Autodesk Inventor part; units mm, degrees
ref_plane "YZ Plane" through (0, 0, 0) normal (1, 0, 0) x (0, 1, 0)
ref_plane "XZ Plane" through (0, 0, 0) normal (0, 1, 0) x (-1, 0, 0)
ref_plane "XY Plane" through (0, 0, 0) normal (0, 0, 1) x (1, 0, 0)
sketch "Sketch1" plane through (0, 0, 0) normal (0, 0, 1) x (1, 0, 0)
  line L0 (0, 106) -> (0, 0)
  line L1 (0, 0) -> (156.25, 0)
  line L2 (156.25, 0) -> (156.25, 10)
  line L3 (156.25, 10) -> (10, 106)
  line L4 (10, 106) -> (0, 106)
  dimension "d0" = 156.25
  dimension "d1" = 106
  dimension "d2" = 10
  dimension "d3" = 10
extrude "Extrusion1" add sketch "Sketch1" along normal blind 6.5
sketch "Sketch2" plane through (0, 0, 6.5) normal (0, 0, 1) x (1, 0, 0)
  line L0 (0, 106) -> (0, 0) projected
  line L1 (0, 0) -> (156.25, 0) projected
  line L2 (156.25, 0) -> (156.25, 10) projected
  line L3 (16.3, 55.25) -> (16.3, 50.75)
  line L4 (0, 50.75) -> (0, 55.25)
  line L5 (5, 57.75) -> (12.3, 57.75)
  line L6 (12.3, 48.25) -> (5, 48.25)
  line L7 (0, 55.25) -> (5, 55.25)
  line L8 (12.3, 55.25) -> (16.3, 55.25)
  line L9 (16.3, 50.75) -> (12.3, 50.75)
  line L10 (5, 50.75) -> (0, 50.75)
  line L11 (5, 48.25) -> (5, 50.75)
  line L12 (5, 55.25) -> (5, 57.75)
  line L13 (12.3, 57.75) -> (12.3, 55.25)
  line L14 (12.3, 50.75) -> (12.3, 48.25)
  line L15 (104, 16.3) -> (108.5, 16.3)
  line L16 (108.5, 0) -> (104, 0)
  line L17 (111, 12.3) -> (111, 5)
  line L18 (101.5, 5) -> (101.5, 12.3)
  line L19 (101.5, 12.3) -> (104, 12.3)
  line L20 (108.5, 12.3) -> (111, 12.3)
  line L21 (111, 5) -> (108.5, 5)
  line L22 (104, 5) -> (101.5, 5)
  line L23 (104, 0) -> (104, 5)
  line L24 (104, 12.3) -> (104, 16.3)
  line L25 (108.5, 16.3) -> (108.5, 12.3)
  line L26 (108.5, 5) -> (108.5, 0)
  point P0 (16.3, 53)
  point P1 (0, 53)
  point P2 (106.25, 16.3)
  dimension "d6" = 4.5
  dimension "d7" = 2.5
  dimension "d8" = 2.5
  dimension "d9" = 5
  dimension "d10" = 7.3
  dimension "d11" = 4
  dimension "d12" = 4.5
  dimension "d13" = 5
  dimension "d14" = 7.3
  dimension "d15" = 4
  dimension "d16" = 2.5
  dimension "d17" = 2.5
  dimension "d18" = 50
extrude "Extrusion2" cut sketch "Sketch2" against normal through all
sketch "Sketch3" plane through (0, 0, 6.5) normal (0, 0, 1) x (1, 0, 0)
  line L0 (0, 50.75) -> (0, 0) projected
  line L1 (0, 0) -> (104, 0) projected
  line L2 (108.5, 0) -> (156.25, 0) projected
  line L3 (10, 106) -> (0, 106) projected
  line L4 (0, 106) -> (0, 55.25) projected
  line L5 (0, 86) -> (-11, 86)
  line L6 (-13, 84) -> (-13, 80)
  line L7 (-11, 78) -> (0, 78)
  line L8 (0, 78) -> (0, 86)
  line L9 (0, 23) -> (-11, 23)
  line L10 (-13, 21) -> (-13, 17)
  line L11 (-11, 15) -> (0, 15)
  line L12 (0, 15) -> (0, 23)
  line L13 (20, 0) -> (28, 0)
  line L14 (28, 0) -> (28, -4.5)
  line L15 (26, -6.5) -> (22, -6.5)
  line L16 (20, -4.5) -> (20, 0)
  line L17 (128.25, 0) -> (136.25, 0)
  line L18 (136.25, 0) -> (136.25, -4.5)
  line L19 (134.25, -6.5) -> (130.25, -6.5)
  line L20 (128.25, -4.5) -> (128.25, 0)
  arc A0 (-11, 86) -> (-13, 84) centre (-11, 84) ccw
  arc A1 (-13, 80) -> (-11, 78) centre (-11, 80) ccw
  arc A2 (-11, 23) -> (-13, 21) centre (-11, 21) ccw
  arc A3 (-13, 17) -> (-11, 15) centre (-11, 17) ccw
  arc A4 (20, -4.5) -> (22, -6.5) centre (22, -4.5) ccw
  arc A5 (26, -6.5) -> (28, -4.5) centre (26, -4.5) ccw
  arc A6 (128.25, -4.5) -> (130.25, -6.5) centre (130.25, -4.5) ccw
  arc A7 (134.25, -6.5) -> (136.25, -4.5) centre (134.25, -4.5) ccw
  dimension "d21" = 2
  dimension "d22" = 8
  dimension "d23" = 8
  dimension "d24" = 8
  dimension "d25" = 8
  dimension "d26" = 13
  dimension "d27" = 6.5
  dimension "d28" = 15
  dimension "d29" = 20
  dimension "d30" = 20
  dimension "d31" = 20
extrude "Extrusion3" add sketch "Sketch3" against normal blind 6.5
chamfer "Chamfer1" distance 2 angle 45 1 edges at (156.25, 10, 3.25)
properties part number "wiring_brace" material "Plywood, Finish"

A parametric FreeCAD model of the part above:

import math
import FreeCAD as App
import Part
import Sketcher
from FreeCAD import Vector


def edges_at(feature, points):
    """Names of the edges that pass closest to the given points."""
    edges = feature.Shape.Edges
    near = lambda p: min(range(len(edges)), key=lambda i: edges[i].distToShape(Part.Vertex(*p))[0])
    return sorted({f"Edge{near(p) + 1}" for p in points})

doc = App.newDocument("Part")
body = doc.addObject("PartDesign::Body", "Body")

# Sketch on XY plane
sketch1 = doc.addObject("Sketcher::SketchObject", "Sketch")
body.addObject(sketch1)
sketch1.AttachmentSupport = (doc.XY_Plane, [""])
sketch1.MapMode = "FlatFace"
sketch1.addGeometry(Part.LineSegment(Vector(10, 106, 0), Vector(0, 106, 0)), False)
sketch1.addGeometry(Part.LineSegment(Vector(0, 106, 0), Vector(0, 0, 0)), False)
sketch1.addGeometry(Part.LineSegment(Vector(0, 0, 0), Vector(156, 0, 0)), False)
sketch1.addGeometry(Part.LineSegment(Vector(156, 0, 0), Vector(156, 10, 0)), False)
sketch1.addGeometry(Part.LineSegment(Vector(156, 10, 0), Vector(10, 106, 0)), False)
sketch1.addConstraint(Sketcher.Constraint("Coincident", 0, 2, 1, 1))
sketch1.addConstraint(Sketcher.Constraint("Coincident", 1, 2, 2, 1))
sketch1.addConstraint(Sketcher.Constraint("Coincident", 2, 2, 3, 1))
sketch1.addConstraint(Sketcher.Constraint("Coincident", 3, 2, 4, 1))
sketch1.addConstraint(Sketcher.Constraint("Coincident", 4, 2, 0, 1))
sketch1.addConstraint(Sketcher.Constraint("Horizontal", 0))
sketch1.addConstraint(Sketcher.Constraint("Vertical", 1))
sketch1.addConstraint(Sketcher.Constraint("Horizontal", 2))
sketch1.addConstraint(Sketcher.Constraint("Vertical", 3))
sketch1.addConstraint(Sketcher.Constraint("Coincident", 1, 2, -1, 1))
sketch1.addConstraint(Sketcher.Constraint("Equal", 0, 3))
sketch1.addConstraint(Sketcher.Constraint("DistanceX", 0, 2, 0, 1, 10.0))
sketch1.addConstraint(Sketcher.Constraint("DistanceY", 1, 2, 1, 1, 106.0))
sketch1.addConstraint(Sketcher.Constraint("DistanceX", 2, 1, 2, 2, 156.25))
pad1 = doc.addObject("PartDesign::Pad", "Pad")
body.addObject(pad1)
pad1.Profile = sketch1
pad1.Length = 6.5

# Sketch on XY plane
sketch2 = doc.addObject("Sketcher::SketchObject", "Sketch001")
body.addObject(sketch2)
sketch2.AttachmentSupport = (doc.XY_Plane, [""])
sketch2.MapMode = "FlatFace"
sketch2.AttachmentOffset = App.Placement(Vector(0, 0, 6.5), App.Rotation())
sketch2.addGeometry(Part.LineSegment(Vector(5, 55.2, 0), Vector(0, 55.2, 0)), False)
sketch2.addGeometry(Part.LineSegment(Vector(0, 55.2, 0), Vector(0, 50.8, 0)), False)
sketch2.addGeometry(Part.LineSegment(Vector(0, 50.8, 0), Vector(5, 50.8, 0)), False)
sketch2.addGeometry(Part.LineSegment(Vector(5, 50.8, 0), Vector(5, 48.2, 0)), False)
sketch2.addGeometry(Part.LineSegment(Vector(5, 48.2, 0), Vector(12.3, 48.2, 0)), False)
sketch2.addGeometry(Part.LineSegment(Vector(12.3, 48.2, 0), Vector(12.3, 50.8, 0)), False)
sketch2.addGeometry(Part.LineSegment(Vector(12.3, 50.8, 0), Vector(16.3, 50.8, 0)), False)
sketch2.addGeometry(Part.LineSegment(Vector(16.3, 50.8, 0), Vector(16.3, 55.2, 0)), False)
sketch2.addGeometry(Part.LineSegment(Vector(16.3, 55.2, 0), Vector(12.3, 55.2, 0)), False)
sketch2.addGeometry(Part.LineSegment(Vector(12.3, 55.2, 0), Vector(12.3, 57.8, 0)), False)
sketch2.addGeometry(Part.LineSegment(Vector(12.3, 57.8, 0), Vector(5, 57.8, 0)), False)
sketch2.addGeometry(Part.LineSegment(Vector(5, 57.8, 0), Vector(5, 55.2, 0)), False)
sketch2.addGeometry(Part.LineSegment(Vector(104, 5, 0), Vector(104, 0, 0)), False)
sketch2.addGeometry(Part.LineSegment(Vector(104, 0, 0), Vector(108.5, 0, 0)), False)
sketch2.addGeometry(Part.LineSegment(Vector(108.5, 0, 0), Vector(108.5, 5, 0)), False)
sketch2.addGeometry(Part.LineSegment(Vector(108.5, 5, 0), Vector(111, 5, 0)), False)
sketch2.addGeometry(Part.LineSegment(Vector(111, 5, 0), Vector(111, 12.3, 0)), False)
sketch2.addGeometry(Part.LineSegment(Vector(111, 12.3, 0), Vector(108.5, 12.3, 0)), False)
sketch2.addGeometry(Part.LineSegment(Vector(108.5, 12.3, 0), Vector(108.5, 16.3, 0)), False)
sketch2.addGeometry(Part.LineSegment(Vector(108.5, 16.3, 0), Vector(104, 16.3, 0)), False)
sketch2.addGeometry(Part.LineSegment(Vector(104, 16.3, 0), Vector(104, 12.3, 0)), False)
sketch2.addGeometry(Part.LineSegment(Vector(104, 12.3, 0), Vector(101.5, 12.3, 0)), False)
sketch2.addGeometry(Part.LineSegment(Vector(101.5, 12.3, 0), Vector(101.5, 5, 0)), False)
sketch2.addGeometry(Part.LineSegment(Vector(101.5, 5, 0), Vector(104, 5, 0)), False)
sketch2.addConstraint(Sketcher.Constraint("Coincident", 0, 2, 1, 1))
sketch2.addConstraint(Sketcher.Constraint("Coincident", 1, 2, 2, 1))
sketch2.addConstraint(Sketcher.Constraint("Coincident", 2, 2, 3, 1))
sketch2.addConstraint(Sketcher.Constraint("Coincident", 3, 2, 4, 1))
sketch2.addConstraint(Sketcher.Constraint("Coincident", 4, 2, 5, 1))
sketch2.addConstraint(Sketcher.Constraint("Coincident", 5, 2, 6, 1))
sketch2.addConstraint(Sketcher.Constraint("Coincident", 6, 2, 7, 1))
sketch2.addConstraint(Sketcher.Constraint("Coincident", 7, 2, 8, 1))
sketch2.addConstraint(Sketcher.Constraint("Coincident", 8, 2, 9, 1))
sketch2.addConstraint(Sketcher.Constraint("Coincident", 9, 2, 10, 1))
sketch2.addConstraint(Sketcher.Constraint("Coincident", 10, 2, 11, 1))
sketch2.addConstraint(Sketcher.Constraint("Coincident", 11, 2, 0, 1))
sketch2.addConstraint(Sketcher.Constraint("Coincident", 12, 2, 13, 1))
sketch2.addConstraint(Sketcher.Constraint("Coincident", 13, 2, 14, 1))
sketch2.addConstraint(Sketcher.Constraint("Coincident", 14, 2, 15, 1))
sketch2.addConstraint(Sketcher.Constraint("Coincident", 15, 2, 16, 1))
sketch2.addConstraint(Sketcher.Constraint("Coincident", 16, 2, 17, 1))
sketch2.addConstraint(Sketcher.Constraint("Coincident", 17, 2, 18, 1))
sketch2.addConstraint(Sketcher.Constraint("Coincident", 18, 2, 19, 1))
sketch2.addConstraint(Sketcher.Constraint("Coincident", 19, 2, 20, 1))
sketch2.addConstraint(Sketcher.Constraint("Coincident", 20, 2, 21, 1))
sketch2.addConstraint(Sketcher.Constraint("Coincident", 21, 2, 22, 1))
sketch2.addConstraint(Sketcher.Constraint("Coincident", 22, 2, 23, 1))
sketch2.addConstraint(Sketcher.Constraint("Coincident", 23, 2, 12, 1))
sketch2.addConstraint(Sketcher.Constraint("Horizontal", 0))
sketch2.addConstraint(Sketcher.Constraint("Vertical", 1))
sketch2.addConstraint(Sketcher.Constraint("Horizontal", 2))
sketch2.addConstraint(Sketcher.Constraint("Vertical", 3))
sketch2.addConstraint(Sketcher.Constraint("Horizontal", 4))
sketch2.addConstraint(Sketcher.Constraint("Vertical", 5))
sketch2.addConstraint(Sketcher.Constraint("Horizontal", 6))
sketch2.addConstraint(Sketcher.Constraint("Vertical", 7))
sketch2.addConstraint(Sketcher.Constraint("Horizontal", 8))
sketch2.addConstraint(Sketcher.Constraint("Vertical", 9))
sketch2.addConstraint(Sketcher.Constraint("Horizontal", 10))
sketch2.addConstraint(Sketcher.Constraint("Vertical", 11))
sketch2.addConstraint(Sketcher.Constraint("Vertical", 12))
sketch2.addConstraint(Sketcher.Constraint("Horizontal", 13))
sketch2.addConstraint(Sketcher.Constraint("Vertical", 14))
sketch2.addConstraint(Sketcher.Constraint("Horizontal", 15))
sketch2.addConstraint(Sketcher.Constraint("Vertical", 16))
sketch2.addConstraint(Sketcher.Constraint("Horizontal", 17))
sketch2.addConstraint(Sketcher.Constraint("Vertical", 18))
sketch2.addConstraint(Sketcher.Constraint("Horizontal", 19))
sketch2.addConstraint(Sketcher.Constraint("Vertical", 20))
sketch2.addConstraint(Sketcher.Constraint("Horizontal", 21))
sketch2.addConstraint(Sketcher.Constraint("Vertical", 22))
sketch2.addConstraint(Sketcher.Constraint("Horizontal", 23))
sketch2.addConstraint(Sketcher.Constraint("PointOnObject", 0, 2, -2))
sketch2.addConstraint(Sketcher.Constraint("PointOnObject", 12, 2, -1))
sketch2.addConstraint(Sketcher.Constraint("Horizontal", 2, 2, 5, 2))
sketch2.addConstraint(Sketcher.Constraint("Horizontal", 0, 2, 7, 2))
sketch2.addConstraint(Sketcher.Constraint("Horizontal", 17, 2, 20, 2))
sketch2.addConstraint(Sketcher.Constraint("Horizontal", 15, 2, 22, 2))
sketch2.addConstraint(Sketcher.Constraint("Vertical", 5, 2, 8, 2))
sketch2.addConstraint(Sketcher.Constraint("Vertical", 3, 2, 10, 2))
sketch2.addConstraint(Sketcher.Constraint("Vertical", 14, 2, 17, 2))
sketch2.addConstraint(Sketcher.Constraint("Vertical", 12, 2, 19, 2))
sketch2.addConstraint(Sketcher.Constraint("Equal", 17, 21))
sketch2.addConstraint(Sketcher.Constraint("Equal", 19, 1))
sketch2.addConstraint(Sketcher.Constraint("Equal", 23, 3))
sketch2.addConstraint(Sketcher.Constraint("Equal", 5, 9))
sketch2.addConstraint(Sketcher.Constraint("Equal", 2, 12))
sketch2.addConstraint(Sketcher.Constraint("Equal", 10, 16))
sketch2.addConstraint(Sketcher.Constraint("Equal", 8, 18))
sketch2.addConstraint(Sketcher.Constraint("DistanceX", 0, 2, 0, 1, 5.0))
sketch2.addConstraint(Sketcher.Constraint("DistanceX", 6, 1, 6, 2, 4.0))
sketch2.addConstraint(Sketcher.Constraint("DistanceX", 4, 1, 4, 2, 7.3))
sketch2.addConstraint(Sketcher.Constraint("DistanceX", 13, 1, 13, 2, 4.5))
sketch2.addConstraint(Sketcher.Constraint("DistanceX", 15, 1, 15, 2, 2.5))
sketch2.addConstraint(Sketcher.Constraint("DistanceX", -1, 1, 12, 2, 104.0))
sketch2.addConstraint(Sketcher.Constraint("DistanceY", -1, 1, 0, 2, 55.25))
pocket1 = doc.addObject("PartDesign::Pocket", "Pocket")
body.addObject(pocket1)
pocket1.Profile = sketch2
pocket1.Type = "ThroughAll"

# Sketch on XY plane
sketch3 = doc.addObject("Sketcher::SketchObject", "Sketch002")
body.addObject(sketch3)
sketch3.AttachmentSupport = (doc.XY_Plane, [""])
sketch3.MapMode = "FlatFace"
sketch3.AttachmentOffset = App.Placement(Vector(0, 0, 6.5), App.Rotation())
sketch3.addGeometry(Part.LineSegment(Vector(28, 0, 0), Vector(20, 0, 0)), False)
sketch3.addGeometry(Part.LineSegment(Vector(20, 0, 0), Vector(20, -4.5, 0)), False)
sketch3.addGeometry(Part.ArcOfCircle(Part.Circle(Vector(22, -4.5, 0), Vector(0, 0, 1), 2), math.radians(180), math.radians(270)), False)
sketch3.addGeometry(Part.LineSegment(Vector(22, -6.5, 0), Vector(26, -6.5, 0)), False)
sketch3.addGeometry(Part.ArcOfCircle(Part.Circle(Vector(26, -4.5, 0), Vector(0, 0, 1), 2), math.radians(-90), math.radians(0)), False)
sketch3.addGeometry(Part.LineSegment(Vector(28, -4.5, 0), Vector(28, 0, 0)), False)
sketch3.addGeometry(Part.LineSegment(Vector(0, 15, 0), Vector(0, 23, 0)), False)
sketch3.addGeometry(Part.LineSegment(Vector(0, 23, 0), Vector(-11, 23, 0)), False)
sketch3.addGeometry(Part.ArcOfCircle(Part.Circle(Vector(-11, 21, 0), Vector(0, 0, 1), 2), math.radians(90), math.radians(180)), False)
sketch3.addGeometry(Part.LineSegment(Vector(-13, 21, 0), Vector(-13, 17, 0)), False)
sketch3.addGeometry(Part.ArcOfCircle(Part.Circle(Vector(-11, 17, 0), Vector(0, 0, 1), 2), math.radians(180), math.radians(270)), False)
sketch3.addGeometry(Part.LineSegment(Vector(-11, 15, 0), Vector(0, 15, 0)), False)
sketch3.addGeometry(Part.LineSegment(Vector(136.2, 0, 0), Vector(128.2, 0, 0)), False)
sketch3.addGeometry(Part.LineSegment(Vector(128.2, 0, 0), Vector(128.2, -4.5, 0)), False)
sketch3.addGeometry(Part.ArcOfCircle(Part.Circle(Vector(130.2, -4.5, 0), Vector(0, 0, 1), 2), math.radians(180), math.radians(270)), False)
sketch3.addGeometry(Part.LineSegment(Vector(130.2, -6.5, 0), Vector(134.2, -6.5, 0)), False)
sketch3.addGeometry(Part.ArcOfCircle(Part.Circle(Vector(134.2, -4.5, 0), Vector(0, 0, 1), 2), math.radians(-90), math.radians(0)), False)
sketch3.addGeometry(Part.LineSegment(Vector(136.2, -4.5, 0), Vector(136.2, 0, 0)), False)
sketch3.addGeometry(Part.LineSegment(Vector(0, 78, 0), Vector(0, 86, 0)), False)
sketch3.addGeometry(Part.LineSegment(Vector(0, 86, 0), Vector(-11, 86, 0)), False)
sketch3.addGeometry(Part.ArcOfCircle(Part.Circle(Vector(-11, 84, 0), Vector(0, 0, 1), 2), math.radians(90), math.radians(180)), False)
sketch3.addGeometry(Part.LineSegment(Vector(-13, 84, 0), Vector(-13, 80, 0)), False)
sketch3.addGeometry(Part.ArcOfCircle(Part.Circle(Vector(-11, 80, 0), Vector(0, 0, 1), 2), math.radians(180), math.radians(270)), False)
sketch3.addGeometry(Part.LineSegment(Vector(-11, 78, 0), Vector(0, 78, 0)), False)
sketch3.addConstraint(Sketcher.Constraint("Coincident", 0, 2, 1, 1))
sketch3.addConstraint(Sketcher.Constraint("Tangent", 1, 2, 2, 1))
sketch3.addConstraint(Sketcher.Constraint("Tangent", 2, 2, 3, 1))
sketch3.addConstraint(Sketcher.Constraint("Tangent", 3, 2, 4, 1))
sketch3.addConstraint(Sketcher.Constraint("Tangent", 4, 2, 5, 1))
sketch3.addConstraint(Sketcher.Constraint("Coincident", 5, 2, 0, 1))
sketch3.addConstraint(Sketcher.Constraint("Coincident", 6, 2, 7, 1))
sketch3.addConstraint(Sketcher.Constraint("Tangent", 7, 2, 8, 1))
sketch3.addConstraint(Sketcher.Constraint("Tangent", 8, 2, 9, 1))
sketch3.addConstraint(Sketcher.Constraint("Tangent", 9, 2, 10, 1))
sketch3.addConstraint(Sketcher.Constraint("Tangent", 10, 2, 11, 1))
sketch3.addConstraint(Sketcher.Constraint("Coincident", 11, 2, 6, 1))
sketch3.addConstraint(Sketcher.Constraint("Coincident", 12, 2, 13, 1))
sketch3.addConstraint(Sketcher.Constraint("Tangent", 13, 2, 14, 1))
sketch3.addConstraint(Sketcher.Constraint("Tangent", 14, 2, 15, 1))
sketch3.addConstraint(Sketcher.Constraint("Tangent", 15, 2, 16, 1))
sketch3.addConstraint(Sketcher.Constraint("Tangent", 16, 2, 17, 1))
sketch3.addConstraint(Sketcher.Constraint("Coincident", 17, 2, 12, 1))
sketch3.addConstraint(Sketcher.Constraint("Coincident", 18, 2, 19, 1))
sketch3.addConstraint(Sketcher.Constraint("Tangent", 19, 2, 20, 1))
sketch3.addConstraint(Sketcher.Constraint("Tangent", 20, 2, 21, 1))
sketch3.addConstraint(Sketcher.Constraint("Tangent", 21, 2, 22, 1))
sketch3.addConstraint(Sketcher.Constraint("Tangent", 22, 2, 23, 1))
sketch3.addConstraint(Sketcher.Constraint("Coincident", 23, 2, 18, 1))
sketch3.addConstraint(Sketcher.Constraint("Horizontal", 0))
sketch3.addConstraint(Sketcher.Constraint("Vertical", 1))
sketch3.addConstraint(Sketcher.Constraint("Horizontal", 3))
sketch3.addConstraint(Sketcher.Constraint("Vertical", 5))
sketch3.addConstraint(Sketcher.Constraint("Vertical", 6))
sketch3.addConstraint(Sketcher.Constraint("Horizontal", 7))
sketch3.addConstraint(Sketcher.Constraint("Vertical", 9))
sketch3.addConstraint(Sketcher.Constraint("Horizontal", 11))
sketch3.addConstraint(Sketcher.Constraint("Horizontal", 12))
sketch3.addConstraint(Sketcher.Constraint("Vertical", 13))
sketch3.addConstraint(Sketcher.Constraint("Horizontal", 15))
sketch3.addConstraint(Sketcher.Constraint("Vertical", 17))
sketch3.addConstraint(Sketcher.Constraint("Vertical", 18))
sketch3.addConstraint(Sketcher.Constraint("Horizontal", 19))
sketch3.addConstraint(Sketcher.Constraint("Vertical", 21))
sketch3.addConstraint(Sketcher.Constraint("Horizontal", 23))
sketch3.addConstraint(Sketcher.Constraint("Equal", 2, 4))
sketch3.addConstraint(Sketcher.Constraint("Equal", 4, 8))
sketch3.addConstraint(Sketcher.Constraint("Equal", 8, 10))
sketch3.addConstraint(Sketcher.Constraint("Equal", 10, 14))
sketch3.addConstraint(Sketcher.Constraint("Equal", 14, 16))
sketch3.addConstraint(Sketcher.Constraint("Equal", 16, 20))
sketch3.addConstraint(Sketcher.Constraint("Equal", 20, 22))
sketch3.addConstraint(Sketcher.Constraint("PointOnObject", 0, 2, -1))
sketch3.addConstraint(Sketcher.Constraint("PointOnObject", 6, 2, -2))
sketch3.addConstraint(Sketcher.Constraint("PointOnObject", 12, 2, -1))
sketch3.addConstraint(Sketcher.Constraint("PointOnObject", 18, 2, -2))
sketch3.addConstraint(Sketcher.Constraint("Horizontal", 4, 3, 14, 3))
sketch3.addConstraint(Sketcher.Constraint("Vertical", 10, 3, 20, 3))
sketch3.addConstraint(Sketcher.Constraint("Equal", 0, 12))
sketch3.addConstraint(Sketcher.Constraint("Equal", 12, 6))
sketch3.addConstraint(Sketcher.Constraint("Equal", 6, 18))
sketch3.addConstraint(Sketcher.Constraint("Radius", 2, 2.0))
sketch3.addConstraint(Sketcher.Constraint("DistanceX", 0, 2, 0, 1, 8.0))
sketch3.addConstraint(Sketcher.Constraint("DistanceX", -1, 1, 0, 2, 20.0))
sketch3.addConstraint(Sketcher.Constraint("DistanceX", 8, 2, -1, 1, 13.0))
sketch3.addConstraint(Sketcher.Constraint("DistanceY", -1, 1, 10, 2, 15.0))
sketch3.addConstraint(Sketcher.Constraint("DistanceY", 2, 2, -1, 1, 6.5))
sketch3.addConstraint(Sketcher.Constraint("DistanceY", -1, 1, 20, 3, 84.0))
sketch3.addConstraint(Sketcher.Constraint("DistanceX", -1, 1, 14, 3, 130.25))
pad2 = doc.addObject("PartDesign::Pad", "Pad001")
body.addObject(pad2)
pad2.Profile = sketch3
pad2.Length = 6.5
pad2.Reversed = True
doc.recompute()

chamfer = doc.addObject("PartDesign::Chamfer", "Chamfer")
body.addObject(chamfer)
chamfer.Base = (pad2, edges_at(pad2, [(156.25, 10, 3.25)]))
chamfer.Size = 2

doc.recompute()
